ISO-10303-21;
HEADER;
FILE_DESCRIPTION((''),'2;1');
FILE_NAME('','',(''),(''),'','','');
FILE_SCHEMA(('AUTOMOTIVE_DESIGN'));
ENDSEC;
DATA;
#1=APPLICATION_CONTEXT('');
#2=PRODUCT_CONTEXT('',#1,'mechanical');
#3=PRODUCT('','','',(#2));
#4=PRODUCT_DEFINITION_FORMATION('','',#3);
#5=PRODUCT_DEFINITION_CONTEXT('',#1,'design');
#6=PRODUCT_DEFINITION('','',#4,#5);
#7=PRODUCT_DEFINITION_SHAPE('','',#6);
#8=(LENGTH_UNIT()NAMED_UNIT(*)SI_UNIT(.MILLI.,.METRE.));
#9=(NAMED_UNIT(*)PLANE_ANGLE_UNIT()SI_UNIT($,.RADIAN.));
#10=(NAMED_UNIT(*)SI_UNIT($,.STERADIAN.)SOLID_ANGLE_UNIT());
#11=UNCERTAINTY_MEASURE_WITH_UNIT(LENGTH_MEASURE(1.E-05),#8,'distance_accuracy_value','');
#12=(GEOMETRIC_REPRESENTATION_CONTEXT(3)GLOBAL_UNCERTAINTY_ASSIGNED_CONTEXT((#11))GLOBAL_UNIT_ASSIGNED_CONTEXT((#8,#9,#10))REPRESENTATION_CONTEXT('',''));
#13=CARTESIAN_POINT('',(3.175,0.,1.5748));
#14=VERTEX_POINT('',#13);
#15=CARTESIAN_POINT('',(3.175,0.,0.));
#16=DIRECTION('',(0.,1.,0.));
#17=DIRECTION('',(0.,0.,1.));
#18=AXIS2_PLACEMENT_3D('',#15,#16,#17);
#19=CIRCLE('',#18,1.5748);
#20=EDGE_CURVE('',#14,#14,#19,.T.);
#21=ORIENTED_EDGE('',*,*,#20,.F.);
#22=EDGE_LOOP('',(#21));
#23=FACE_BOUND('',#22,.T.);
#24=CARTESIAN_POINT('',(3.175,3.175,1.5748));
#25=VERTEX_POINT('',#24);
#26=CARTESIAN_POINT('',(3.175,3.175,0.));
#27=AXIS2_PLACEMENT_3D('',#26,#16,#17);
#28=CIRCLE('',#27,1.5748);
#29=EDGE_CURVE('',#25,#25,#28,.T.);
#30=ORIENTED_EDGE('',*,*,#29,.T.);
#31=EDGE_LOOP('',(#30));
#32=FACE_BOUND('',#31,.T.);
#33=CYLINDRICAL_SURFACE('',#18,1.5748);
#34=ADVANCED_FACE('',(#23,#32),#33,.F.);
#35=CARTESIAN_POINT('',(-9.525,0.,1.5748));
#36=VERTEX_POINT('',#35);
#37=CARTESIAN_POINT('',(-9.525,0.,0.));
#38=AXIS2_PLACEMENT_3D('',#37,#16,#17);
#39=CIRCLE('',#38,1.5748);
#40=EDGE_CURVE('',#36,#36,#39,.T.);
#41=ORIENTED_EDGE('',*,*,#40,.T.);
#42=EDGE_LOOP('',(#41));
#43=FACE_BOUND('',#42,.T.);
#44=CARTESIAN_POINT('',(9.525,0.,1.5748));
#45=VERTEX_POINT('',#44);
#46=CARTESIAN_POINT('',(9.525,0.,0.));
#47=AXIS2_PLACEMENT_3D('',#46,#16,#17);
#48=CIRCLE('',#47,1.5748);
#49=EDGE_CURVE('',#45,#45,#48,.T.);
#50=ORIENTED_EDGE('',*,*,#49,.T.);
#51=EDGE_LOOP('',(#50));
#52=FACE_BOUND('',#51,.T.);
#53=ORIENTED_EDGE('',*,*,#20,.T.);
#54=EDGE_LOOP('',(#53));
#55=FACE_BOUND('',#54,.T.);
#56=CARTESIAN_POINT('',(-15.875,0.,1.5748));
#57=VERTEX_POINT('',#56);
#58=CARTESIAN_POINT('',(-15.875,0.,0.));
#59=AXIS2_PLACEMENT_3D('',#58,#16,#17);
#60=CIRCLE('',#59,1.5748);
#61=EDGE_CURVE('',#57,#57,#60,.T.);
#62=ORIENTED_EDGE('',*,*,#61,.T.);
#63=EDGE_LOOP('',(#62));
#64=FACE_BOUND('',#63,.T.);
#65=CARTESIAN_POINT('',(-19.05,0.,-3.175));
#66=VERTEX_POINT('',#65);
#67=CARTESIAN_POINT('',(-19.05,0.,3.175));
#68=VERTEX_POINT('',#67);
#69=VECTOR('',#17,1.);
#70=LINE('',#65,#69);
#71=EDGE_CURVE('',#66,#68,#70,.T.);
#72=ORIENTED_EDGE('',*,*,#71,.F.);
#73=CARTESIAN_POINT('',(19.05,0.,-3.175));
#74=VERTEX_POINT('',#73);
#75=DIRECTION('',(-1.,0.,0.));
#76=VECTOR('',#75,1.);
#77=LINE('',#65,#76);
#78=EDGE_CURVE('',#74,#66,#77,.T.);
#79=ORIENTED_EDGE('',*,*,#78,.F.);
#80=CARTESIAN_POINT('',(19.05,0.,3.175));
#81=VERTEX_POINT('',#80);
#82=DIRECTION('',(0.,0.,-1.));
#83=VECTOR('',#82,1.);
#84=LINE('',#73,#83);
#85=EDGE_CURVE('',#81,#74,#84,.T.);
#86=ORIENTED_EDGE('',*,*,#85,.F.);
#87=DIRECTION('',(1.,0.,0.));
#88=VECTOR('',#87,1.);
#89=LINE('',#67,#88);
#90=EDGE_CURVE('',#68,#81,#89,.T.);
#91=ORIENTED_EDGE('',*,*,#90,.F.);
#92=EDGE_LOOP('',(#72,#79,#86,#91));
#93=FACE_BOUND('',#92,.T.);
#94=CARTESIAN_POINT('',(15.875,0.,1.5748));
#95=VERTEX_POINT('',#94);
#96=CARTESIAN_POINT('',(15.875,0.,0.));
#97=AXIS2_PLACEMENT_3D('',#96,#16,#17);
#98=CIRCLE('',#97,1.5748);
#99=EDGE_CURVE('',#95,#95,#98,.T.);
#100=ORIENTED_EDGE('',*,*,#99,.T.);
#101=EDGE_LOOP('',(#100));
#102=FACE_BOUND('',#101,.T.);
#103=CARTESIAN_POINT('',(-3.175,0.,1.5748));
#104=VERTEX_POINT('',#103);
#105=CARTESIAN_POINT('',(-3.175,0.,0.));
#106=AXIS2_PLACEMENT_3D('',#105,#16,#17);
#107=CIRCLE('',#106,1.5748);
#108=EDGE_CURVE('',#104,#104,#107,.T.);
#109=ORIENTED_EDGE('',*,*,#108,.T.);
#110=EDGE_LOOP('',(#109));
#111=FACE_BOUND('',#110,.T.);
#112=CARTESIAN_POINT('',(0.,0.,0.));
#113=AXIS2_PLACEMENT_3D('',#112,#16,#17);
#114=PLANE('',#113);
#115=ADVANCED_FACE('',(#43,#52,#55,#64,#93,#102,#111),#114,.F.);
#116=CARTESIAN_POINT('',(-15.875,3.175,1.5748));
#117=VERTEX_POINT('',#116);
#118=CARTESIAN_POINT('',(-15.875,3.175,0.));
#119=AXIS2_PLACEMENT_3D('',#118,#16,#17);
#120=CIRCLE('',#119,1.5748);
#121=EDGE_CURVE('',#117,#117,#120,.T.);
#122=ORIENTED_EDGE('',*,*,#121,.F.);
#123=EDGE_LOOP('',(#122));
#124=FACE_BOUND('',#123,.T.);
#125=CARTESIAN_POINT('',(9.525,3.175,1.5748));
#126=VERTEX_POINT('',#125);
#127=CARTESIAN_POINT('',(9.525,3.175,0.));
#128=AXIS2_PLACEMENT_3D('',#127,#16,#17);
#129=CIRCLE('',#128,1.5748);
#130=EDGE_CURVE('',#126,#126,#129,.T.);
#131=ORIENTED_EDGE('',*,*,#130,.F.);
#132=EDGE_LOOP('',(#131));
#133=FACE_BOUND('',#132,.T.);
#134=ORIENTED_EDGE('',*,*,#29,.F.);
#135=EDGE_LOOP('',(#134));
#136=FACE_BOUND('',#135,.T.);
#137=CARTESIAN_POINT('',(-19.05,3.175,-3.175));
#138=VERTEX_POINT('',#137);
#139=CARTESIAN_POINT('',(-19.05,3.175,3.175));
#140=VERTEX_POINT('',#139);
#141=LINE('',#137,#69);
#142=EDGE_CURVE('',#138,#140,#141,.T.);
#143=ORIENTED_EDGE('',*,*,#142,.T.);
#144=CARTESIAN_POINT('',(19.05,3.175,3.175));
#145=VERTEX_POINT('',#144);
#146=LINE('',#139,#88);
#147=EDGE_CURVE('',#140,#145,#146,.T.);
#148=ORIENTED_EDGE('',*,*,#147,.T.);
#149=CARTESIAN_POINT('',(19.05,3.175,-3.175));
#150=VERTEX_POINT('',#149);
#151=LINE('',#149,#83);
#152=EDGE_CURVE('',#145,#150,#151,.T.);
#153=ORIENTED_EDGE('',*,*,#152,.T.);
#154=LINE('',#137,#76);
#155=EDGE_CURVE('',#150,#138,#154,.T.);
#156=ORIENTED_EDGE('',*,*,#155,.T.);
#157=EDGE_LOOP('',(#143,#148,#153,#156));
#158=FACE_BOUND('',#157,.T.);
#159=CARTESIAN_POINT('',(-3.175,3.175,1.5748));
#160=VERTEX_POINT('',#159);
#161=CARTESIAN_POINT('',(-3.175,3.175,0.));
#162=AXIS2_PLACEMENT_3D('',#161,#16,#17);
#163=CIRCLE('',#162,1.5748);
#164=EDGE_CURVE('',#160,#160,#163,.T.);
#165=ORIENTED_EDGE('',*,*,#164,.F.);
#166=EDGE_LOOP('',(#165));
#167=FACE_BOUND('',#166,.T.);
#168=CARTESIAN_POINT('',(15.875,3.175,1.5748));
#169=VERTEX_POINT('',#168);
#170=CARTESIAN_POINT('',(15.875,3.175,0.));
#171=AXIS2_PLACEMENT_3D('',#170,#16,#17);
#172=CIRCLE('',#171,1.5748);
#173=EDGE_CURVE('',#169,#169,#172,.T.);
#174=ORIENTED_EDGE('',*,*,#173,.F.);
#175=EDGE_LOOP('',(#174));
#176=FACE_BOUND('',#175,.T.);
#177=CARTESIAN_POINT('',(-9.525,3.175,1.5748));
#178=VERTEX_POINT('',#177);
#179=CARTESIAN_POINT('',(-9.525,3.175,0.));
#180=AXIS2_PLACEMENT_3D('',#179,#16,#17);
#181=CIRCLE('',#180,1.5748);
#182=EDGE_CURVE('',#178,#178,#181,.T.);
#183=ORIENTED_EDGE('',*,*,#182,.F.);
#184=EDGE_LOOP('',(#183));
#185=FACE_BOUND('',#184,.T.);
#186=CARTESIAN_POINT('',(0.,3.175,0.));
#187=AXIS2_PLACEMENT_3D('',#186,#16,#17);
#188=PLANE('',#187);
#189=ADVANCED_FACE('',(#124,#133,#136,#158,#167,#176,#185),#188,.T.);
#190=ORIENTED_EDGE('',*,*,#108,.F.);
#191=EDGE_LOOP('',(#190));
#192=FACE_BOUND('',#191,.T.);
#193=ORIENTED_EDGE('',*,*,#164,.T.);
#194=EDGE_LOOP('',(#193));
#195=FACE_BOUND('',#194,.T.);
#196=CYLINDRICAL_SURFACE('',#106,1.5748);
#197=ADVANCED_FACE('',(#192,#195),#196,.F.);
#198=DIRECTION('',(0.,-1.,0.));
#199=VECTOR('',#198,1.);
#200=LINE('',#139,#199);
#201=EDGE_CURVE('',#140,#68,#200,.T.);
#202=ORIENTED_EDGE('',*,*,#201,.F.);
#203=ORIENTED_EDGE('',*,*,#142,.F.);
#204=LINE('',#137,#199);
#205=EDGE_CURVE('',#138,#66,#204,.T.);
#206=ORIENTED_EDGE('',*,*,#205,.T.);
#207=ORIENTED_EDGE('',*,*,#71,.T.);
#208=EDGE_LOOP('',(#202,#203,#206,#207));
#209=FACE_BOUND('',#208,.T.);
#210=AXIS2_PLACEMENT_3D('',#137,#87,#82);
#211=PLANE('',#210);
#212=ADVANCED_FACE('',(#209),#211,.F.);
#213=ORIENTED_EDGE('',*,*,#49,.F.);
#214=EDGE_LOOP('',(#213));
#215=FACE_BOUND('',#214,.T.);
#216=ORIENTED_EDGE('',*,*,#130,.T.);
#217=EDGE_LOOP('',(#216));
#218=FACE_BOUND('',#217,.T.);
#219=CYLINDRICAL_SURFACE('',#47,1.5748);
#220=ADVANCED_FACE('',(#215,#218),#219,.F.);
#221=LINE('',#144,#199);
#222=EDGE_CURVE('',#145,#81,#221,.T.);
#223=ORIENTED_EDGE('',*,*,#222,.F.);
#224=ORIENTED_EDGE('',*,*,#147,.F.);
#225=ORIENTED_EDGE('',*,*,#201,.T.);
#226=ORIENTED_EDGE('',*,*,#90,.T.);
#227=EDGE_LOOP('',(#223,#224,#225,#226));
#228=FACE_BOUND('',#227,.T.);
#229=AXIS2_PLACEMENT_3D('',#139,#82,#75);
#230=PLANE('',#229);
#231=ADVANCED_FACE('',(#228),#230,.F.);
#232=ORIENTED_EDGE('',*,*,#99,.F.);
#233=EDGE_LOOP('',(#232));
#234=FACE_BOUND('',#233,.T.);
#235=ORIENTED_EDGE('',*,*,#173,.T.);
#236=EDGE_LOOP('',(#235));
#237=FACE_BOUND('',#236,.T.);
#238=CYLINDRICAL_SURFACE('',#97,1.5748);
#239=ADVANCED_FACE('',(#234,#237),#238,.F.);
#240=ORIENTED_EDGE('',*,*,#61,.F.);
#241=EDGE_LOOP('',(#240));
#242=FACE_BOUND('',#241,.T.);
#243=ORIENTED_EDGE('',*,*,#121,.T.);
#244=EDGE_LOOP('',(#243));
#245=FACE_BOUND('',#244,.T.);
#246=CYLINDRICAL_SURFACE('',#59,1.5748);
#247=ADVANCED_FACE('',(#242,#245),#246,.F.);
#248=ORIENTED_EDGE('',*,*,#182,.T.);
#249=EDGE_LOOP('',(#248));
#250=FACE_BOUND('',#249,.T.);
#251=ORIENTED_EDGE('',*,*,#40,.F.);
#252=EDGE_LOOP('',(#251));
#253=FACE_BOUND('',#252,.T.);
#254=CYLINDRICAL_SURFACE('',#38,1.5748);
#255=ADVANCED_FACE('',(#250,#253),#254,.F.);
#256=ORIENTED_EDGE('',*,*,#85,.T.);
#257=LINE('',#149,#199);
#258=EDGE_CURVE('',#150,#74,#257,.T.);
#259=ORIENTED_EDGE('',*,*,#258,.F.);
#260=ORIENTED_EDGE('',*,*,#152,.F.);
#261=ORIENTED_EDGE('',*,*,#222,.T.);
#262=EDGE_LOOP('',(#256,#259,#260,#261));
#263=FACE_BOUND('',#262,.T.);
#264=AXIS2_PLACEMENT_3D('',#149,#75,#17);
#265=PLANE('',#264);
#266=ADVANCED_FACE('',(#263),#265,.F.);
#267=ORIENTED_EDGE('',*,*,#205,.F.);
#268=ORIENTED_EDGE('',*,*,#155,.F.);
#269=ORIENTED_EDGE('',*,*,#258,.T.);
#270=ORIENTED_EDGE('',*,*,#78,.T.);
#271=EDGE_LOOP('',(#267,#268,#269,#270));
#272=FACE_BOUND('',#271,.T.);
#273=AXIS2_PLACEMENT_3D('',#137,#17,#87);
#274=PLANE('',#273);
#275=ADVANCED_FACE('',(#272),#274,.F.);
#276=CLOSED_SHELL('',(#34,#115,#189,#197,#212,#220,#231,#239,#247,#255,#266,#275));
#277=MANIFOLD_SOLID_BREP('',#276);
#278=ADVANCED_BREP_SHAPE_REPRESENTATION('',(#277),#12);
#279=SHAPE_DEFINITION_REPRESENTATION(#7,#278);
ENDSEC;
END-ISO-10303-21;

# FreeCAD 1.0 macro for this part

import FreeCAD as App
import Part
import Sketcher
from FreeCAD import Vector
Q = App.Units.Quantity


def add_polygon(sketch, points):
    """Adds a closed chain of lines whose ends are joined by coincident constraints."""
    first, n = sketch.GeometryCount, len(points)
    for a, b in zip(points, points[1:] + points[:1]):
        sketch.addGeometry(Part.LineSegment(App.Vector(*a, 0), App.Vector(*b, 0)), False)
    for i in range(n):
        sketch.addConstraint(Sketcher.Constraint("Coincident", first + i, 2, first + (i + 1) % n, 1))

doc = App.newDocument("Part")
body = doc.addObject("PartDesign::Body", "Body")

# Sketch on XZ plane
sketch1 = body.newObject("Sketcher::SketchObject", "Sketch")
sketch1.AttachmentSupport = (doc.getObject("XZ_Plane"), [""])
sketch1.MapMode = "FlatFace"
add_polygon(sketch1, [(-19, -3), (-19, 3), (19, 3), (19, -3)])  # lines 0-3
sketch1.addConstraint([
    Sketcher.Constraint("Vertical", 0),
    Sketcher.Constraint("Horizontal", 1),
    Sketcher.Constraint("Vertical", 2),
    Sketcher.Constraint("Horizontal", 3),
    Sketcher.Constraint("Symmetric", 0, 2, 2, 2, -1, 1),
    Sketcher.Constraint("DistanceX", 1, 1, 1, 2, Q("1.5 in")),
    Sketcher.Constraint("DistanceY", 0, 1, 0, 2, Q("0.25 in")),
])
pad1 = body.newObject("PartDesign::Pad", "Pad")
pad1.Profile = sketch1
pad1.Length = Q("0.125 in")
pad1.Reversed = True

# Sketch on XZ plane
sketch2 = body.newObject("Sketcher::SketchObject", "Sketch001")
sketch2.AttachmentSupport = (doc.getObject("XZ_Plane"), [""])
sketch2.MapMode = "FlatFace"
sketch2.AttachmentOffset = App.Placement(Vector(0, 0, -0.125 * 25.4), App.Rotation())
sketch2.addGeometry(Part.Circle(Vector(15.9, 0, 0), Vector(0, 0, 1), 1.6), False)
sketch2.addConstraint([
    Sketcher.Constraint("PointOnObject", 0, 3, -1),
    Sketcher.Constraint("Diameter", 0, Q("0.124 in")),
    Sketcher.Constraint("DistanceX", -1, 1, 0, 3, Q("0.625 in")),
])
pocket1 = body.newObject("PartDesign::Pocket", "Pocket")
pocket1.Profile = sketch2
pocket1.Type = "ThroughAll"
pocket1.Reversed = True
doc.recompute()

linearpattern = body.newObject("PartDesign::LinearPattern", "LinearPattern")
linearpattern.Originals = [pocket1]
linearpattern.Direction = (doc.getObject("X_Axis"), [""])
linearpattern.Mode = "offset"
linearpattern.Offset = Q("0.25 in")
linearpattern.Occurrences = 6
linearpattern.Reversed = True
body.Tip = linearpattern

doc.recompute()
